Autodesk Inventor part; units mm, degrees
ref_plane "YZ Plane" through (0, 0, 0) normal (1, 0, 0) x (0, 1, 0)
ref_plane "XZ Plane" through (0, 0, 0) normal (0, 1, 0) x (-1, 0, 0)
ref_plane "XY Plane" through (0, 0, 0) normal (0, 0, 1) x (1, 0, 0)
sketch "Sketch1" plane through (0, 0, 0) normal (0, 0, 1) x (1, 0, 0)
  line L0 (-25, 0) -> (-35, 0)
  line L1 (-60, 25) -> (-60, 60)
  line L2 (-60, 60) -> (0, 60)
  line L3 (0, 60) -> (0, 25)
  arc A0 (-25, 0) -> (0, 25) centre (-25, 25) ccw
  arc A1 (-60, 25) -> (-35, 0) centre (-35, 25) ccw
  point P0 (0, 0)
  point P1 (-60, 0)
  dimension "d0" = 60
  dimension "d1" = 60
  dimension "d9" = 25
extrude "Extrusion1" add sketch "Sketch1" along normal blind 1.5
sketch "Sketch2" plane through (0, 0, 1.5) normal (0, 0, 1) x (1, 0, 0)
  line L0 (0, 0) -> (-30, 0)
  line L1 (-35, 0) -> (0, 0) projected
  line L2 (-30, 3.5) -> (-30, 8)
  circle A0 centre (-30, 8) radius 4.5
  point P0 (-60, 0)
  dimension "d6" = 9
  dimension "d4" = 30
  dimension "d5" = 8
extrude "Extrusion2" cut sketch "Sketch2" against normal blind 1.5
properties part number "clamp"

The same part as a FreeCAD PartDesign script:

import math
import FreeCAD as App
import Part
import Sketcher
from FreeCAD import Vector

doc = App.newDocument("Part")
params = doc.addObject("Spreadsheet::Sheet", "Params")
for row, (alias, value) in enumerate([
    ("sketch1_radius", "25 mm"),
    ("sketch1_width", "60 mm"),
    ("pad1_length", "1.5 mm"),
    ("sketch2_diameter", "9 mm"),
    ("pocket1_length", "1.5 mm"),
], start=1):
    params.set(f"A{row}", alias)
    params.set(f"B{row}", "=" + value)
    params.setAlias(f"B{row}", alias)

body = doc.addObject("PartDesign::Body", "Body")

# Sketch on XY plane
sketch1 = body.newObject("Sketcher::SketchObject", "Sketch")
sketch1.AttachmentSupport = (doc.getObject("XY_Plane"), [""])
sketch1.MapMode = "FlatFace"
sketch1.addGeometry([
    Part.LineSegment(Vector(-35, 0, 0), Vector(-25, 0, 0)),  # 0
    Part.ArcOfCircle(Part.Circle(Vector(-25, 25, 0), Vector(0, 0, 1), 25), math.radians(-90), math.radians(0)),  # 1
    Part.LineSegment(Vector(0, 25, 0), Vector(0, 60, 0)),  # 2
    Part.LineSegment(Vector(0, 60, 0), Vector(-60, 60, 0)),  # 3
    Part.LineSegment(Vector(-60, 60, 0), Vector(-60, 25, 0)),  # 4
    Part.ArcOfCircle(Part.Circle(Vector(-35, 25, 0), Vector(0, 0, 1), 25), math.radians(180), math.radians(270)),  # 5
], False)
sketch1.addConstraint([
    Sketcher.Constraint("Tangent", 0, 2, 1, 1),
    Sketcher.Constraint("Tangent", 1, 2, 2, 1),
    Sketcher.Constraint("Coincident", 2, 2, 3, 1),
    Sketcher.Constraint("Coincident", 3, 2, 4, 1),
    Sketcher.Constraint("Tangent", 4, 2, 5, 1),
    Sketcher.Constraint("Tangent", 5, 2, 0, 1),
    Sketcher.Constraint("Horizontal", 0),
    Sketcher.Constraint("Vertical", 2),
    Sketcher.Constraint("Horizontal", 3),
    Sketcher.Constraint("Vertical", 4),
    Sketcher.Constraint("Equal", 1, 5),
    Sketcher.Constraint("PointOnObject", 0, 2, -1),
    Sketcher.Constraint("PointOnObject", 1, 2, -2),
    Sketcher.Constraint("Radius", 1, 25.0),
    Sketcher.Constraint("DistanceX", 3, 2, 3, 1, 60.0),
    Sketcher.Constraint("DistanceY", -1, 1, 2, 2, 60.0),
])
sketch1.setExpression("Constraints[13]", "Params.sketch1_radius")
sketch1.setExpression("Constraints[14]", "Params.sketch1_width")
pad1 = body.newObject("PartDesign::Pad", "Pad")
pad1.Profile = sketch1
pad1.setExpression("Length", "Params.pad1_length")

# Sketch on XY plane
sketch2 = body.newObject("Sketcher::SketchObject", "Sketch001")
sketch2.AttachmentSupport = (doc.getObject("XY_Plane"), [""])
sketch2.MapMode = "FlatFace"
sketch2.AttachmentOffset = App.Placement(Vector(0, 0, 1.5), App.Rotation())
sketch2.addGeometry(Part.Circle(Vector(-30, 8, 0), Vector(0, 0, 1), 4.5), False)
sketch2.addConstraint([
    Sketcher.Constraint("Diameter", 0, 9.0),
    Sketcher.Constraint("DistanceX", 0, 3, -1, 1, 30.0),
    Sketcher.Constraint("DistanceY", -1, 1, 0, 3, 8.0),
])
sketch2.setExpression("Constraints[0]", "Params.sketch2_diameter")
pocket1 = body.newObject("PartDesign::Pocket", "Pocket")
pocket1.Profile = sketch2
pocket1.setExpression("Length", "Params.pocket1_length")

doc.recompute()
